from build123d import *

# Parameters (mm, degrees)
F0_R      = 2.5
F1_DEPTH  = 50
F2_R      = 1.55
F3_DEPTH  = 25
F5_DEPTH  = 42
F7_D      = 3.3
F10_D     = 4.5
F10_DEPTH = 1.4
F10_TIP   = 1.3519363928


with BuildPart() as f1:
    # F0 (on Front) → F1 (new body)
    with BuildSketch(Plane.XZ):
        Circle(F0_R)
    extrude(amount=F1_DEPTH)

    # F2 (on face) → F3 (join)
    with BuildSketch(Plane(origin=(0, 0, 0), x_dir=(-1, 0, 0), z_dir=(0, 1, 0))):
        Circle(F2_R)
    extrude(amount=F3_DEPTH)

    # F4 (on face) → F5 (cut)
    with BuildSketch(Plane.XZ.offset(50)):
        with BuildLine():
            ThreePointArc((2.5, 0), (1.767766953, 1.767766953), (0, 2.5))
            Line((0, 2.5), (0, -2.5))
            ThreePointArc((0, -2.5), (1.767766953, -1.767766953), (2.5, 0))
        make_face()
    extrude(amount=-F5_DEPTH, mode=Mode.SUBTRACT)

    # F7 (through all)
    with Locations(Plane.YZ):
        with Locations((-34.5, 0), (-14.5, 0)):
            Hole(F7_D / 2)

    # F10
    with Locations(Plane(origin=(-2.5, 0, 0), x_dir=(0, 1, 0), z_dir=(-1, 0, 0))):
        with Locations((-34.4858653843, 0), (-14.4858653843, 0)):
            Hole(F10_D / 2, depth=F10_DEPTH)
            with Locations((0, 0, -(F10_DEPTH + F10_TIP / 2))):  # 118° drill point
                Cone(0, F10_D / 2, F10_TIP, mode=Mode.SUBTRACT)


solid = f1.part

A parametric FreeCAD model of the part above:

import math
import FreeCAD as App
import Part
import Sketcher

V = App.Vector

doc = App.newDocument("Part")
body = doc.addObject("PartDesign::Body", "Body")

# Sketch on XZ plane
sketch1 = body.newObject("Sketcher::SketchObject", "Sketch")
sketch1.AttachmentSupport = (doc.getObject("XZ_Plane"), [""])
sketch1.MapMode = "FlatFace"
sketch1.addGeometry(Part.Circle(V(0, 0, 0), V(0, 0, 1), 2.5), False)
sketch1.addConstraint(Sketcher.Constraint("Coincident", 0, 3, -1, 1))
sketch1.addConstraint(Sketcher.Constraint("Diameter", 0, 5.0))
pad1 = body.newObject("PartDesign::Pad", "Pad")
pad1.Profile = sketch1
pad1.Length = 50

# Sketch on XZ plane
sketch2 = body.newObject("Sketcher::SketchObject", "Sketch001")
sketch2.AttachmentSupport = (doc.getObject("XZ_Plane"), [""])
sketch2.MapMode = "FlatFace"
sketch2.addGeometry(Part.Circle(V(0, 0, 0), V(0, 0, 1), 1.6), False)
sketch2.addConstraint(Sketcher.Constraint("Coincident", 0, 3, -1, 1))
sketch2.addConstraint(Sketcher.Constraint("Diameter", 0, 3.1))
pad2 = body.newObject("PartDesign::Pad", "Pad001")
pad2.Profile = sketch2
pad2.Length = 25
pad2.Reversed = True

# Sketch on XZ plane
sketch3 = body.newObject("Sketcher::SketchObject", "Sketch002")
sketch3.AttachmentSupport = (doc.getObject("XZ_Plane"), [""])
sketch3.MapMode = "FlatFace"
sketch3.AttachmentOffset = App.Placement(V(0, 0, 50), App.Rotation())
sketch3.addGeometry(Part.ArcOfCircle(Part.Circle(V(0, 0, 0), V(0, 0, 1), 2.5), math.radians(0), math.radians(90)), False)
sketch3.addGeometry(Part.LineSegment(V(0, 2.5, 0), V(0, -2.5, 0)), False)
sketch3.addGeometry(Part.ArcOfCircle(Part.Circle(V(0, 0, 0), V(0, 0, 1), 2.5), math.radians(-90), math.radians(0)), False)
sketch3.addConstraint(Sketcher.Constraint("Coincident", 0, 2, 1, 1))
sketch3.addConstraint(Sketcher.Constraint("Coincident", 1, 2, 2, 1))
sketch3.addConstraint(Sketcher.Constraint("Tangent", 2, 2, 0, 1))
sketch3.addConstraint(Sketcher.Constraint("Vertical", 1))
sketch3.addConstraint(Sketcher.Constraint("Coincident", 0, 3, -1, 1))
sketch3.addConstraint(Sketcher.Constraint("Equal", 0, 2))
sketch3.addConstraint(Sketcher.Constraint("PointOnObject", 0, 2, -2))
sketch3.addConstraint(Sketcher.Constraint("PointOnObject", 2, 2, -1))
sketch3.addConstraint(Sketcher.Constraint("Radius", 0, 2.5))
pocket1 = body.newObject("PartDesign::Pocket", "Pocket")
pocket1.Profile = sketch3
pocket1.Length = 42

# Sketch on YZ plane
sketch4 = body.newObject("Sketcher::SketchObject", "Sketch003")
sketch4.AttachmentSupport = (doc.getObject("YZ_Plane"), [""])
sketch4.MapMode = "FlatFace"
sketch4.addGeometry(Part.Circle(V(-34.5, 0, 0), V(0, 0, 1), 1.6), False)
sketch4.addGeometry(Part.Circle(V(-14.5, 0, 0), V(0, 0, 1), 1.6), False)
sketch4.addConstraint(Sketcher.Constraint("Equal", 0, 1))
sketch4.addConstraint(Sketcher.Constraint("PointOnObject", 0, 3, -1))
sketch4.addConstraint(Sketcher.Constraint("PointOnObject", 1, 3, -1))
sketch4.addConstraint(Sketcher.Constraint("Diameter", 0, 3.3))
sketch4.addConstraint(Sketcher.Constraint("DistanceX", 0, 3, 1, 3, 20.0))
sketch4.addConstraint(Sketcher.Constraint("DistanceX", 0, 3, -1, 1, 34.5))
doc.recompute()
hole = body.newObject("PartDesign::Hole", "Hole")
hole.Profile = sketch4
hole.ThreadType = "None"
hole.Diameter = 3.3
hole.DepthType = "ThroughAll"

# Sketch on YZ plane
sketch5 = body.newObject("Sketcher::SketchObject", "Sketch004")
sketch5.AttachmentSupport = (doc.getObject("YZ_Plane"), [""])
sketch5.MapMode = "FlatFace"
sketch5.AttachmentOffset = App.Placement(V(0, 0, -2.5), App.Rotation())
sketch5.addGeometry(Part.Circle(V(-34.5, 0, 0), V(0, 0, 1), 2.2), False)
sketch5.addGeometry(Part.Circle(V(-14.5, 0, 0), V(0, 0, 1), 2.2), False)
sketch5.addConstraint(Sketcher.Constraint("Equal", 0, 1))
sketch5.addConstraint(Sketcher.Constraint("PointOnObject", 0, 3, -1))
sketch5.addConstraint(Sketcher.Constraint("PointOnObject", 1, 3, -1))
sketch5.addConstraint(Sketcher.Constraint("Diameter", 0, 4.5))
sketch5.addConstraint(Sketcher.Constraint("DistanceX", 0, 3, 1, 3, 20.0))
sketch5.addConstraint(Sketcher.Constraint("DistanceX", 0, 3, -1, 1, 34.485865))
doc.recompute()
hole2 = body.newObject("PartDesign::Hole", "Hole001")
hole2.Profile = sketch5
hole2.ThreadType = "None"
hole2.Diameter = 4.5
hole2.DepthType = "Dimension"
hole2.Depth = 1.4
hole2.DrillPoint = "Angled"
hole2.DrillPointAngle = 118
hole2.Reversed = True

doc.recompute()
